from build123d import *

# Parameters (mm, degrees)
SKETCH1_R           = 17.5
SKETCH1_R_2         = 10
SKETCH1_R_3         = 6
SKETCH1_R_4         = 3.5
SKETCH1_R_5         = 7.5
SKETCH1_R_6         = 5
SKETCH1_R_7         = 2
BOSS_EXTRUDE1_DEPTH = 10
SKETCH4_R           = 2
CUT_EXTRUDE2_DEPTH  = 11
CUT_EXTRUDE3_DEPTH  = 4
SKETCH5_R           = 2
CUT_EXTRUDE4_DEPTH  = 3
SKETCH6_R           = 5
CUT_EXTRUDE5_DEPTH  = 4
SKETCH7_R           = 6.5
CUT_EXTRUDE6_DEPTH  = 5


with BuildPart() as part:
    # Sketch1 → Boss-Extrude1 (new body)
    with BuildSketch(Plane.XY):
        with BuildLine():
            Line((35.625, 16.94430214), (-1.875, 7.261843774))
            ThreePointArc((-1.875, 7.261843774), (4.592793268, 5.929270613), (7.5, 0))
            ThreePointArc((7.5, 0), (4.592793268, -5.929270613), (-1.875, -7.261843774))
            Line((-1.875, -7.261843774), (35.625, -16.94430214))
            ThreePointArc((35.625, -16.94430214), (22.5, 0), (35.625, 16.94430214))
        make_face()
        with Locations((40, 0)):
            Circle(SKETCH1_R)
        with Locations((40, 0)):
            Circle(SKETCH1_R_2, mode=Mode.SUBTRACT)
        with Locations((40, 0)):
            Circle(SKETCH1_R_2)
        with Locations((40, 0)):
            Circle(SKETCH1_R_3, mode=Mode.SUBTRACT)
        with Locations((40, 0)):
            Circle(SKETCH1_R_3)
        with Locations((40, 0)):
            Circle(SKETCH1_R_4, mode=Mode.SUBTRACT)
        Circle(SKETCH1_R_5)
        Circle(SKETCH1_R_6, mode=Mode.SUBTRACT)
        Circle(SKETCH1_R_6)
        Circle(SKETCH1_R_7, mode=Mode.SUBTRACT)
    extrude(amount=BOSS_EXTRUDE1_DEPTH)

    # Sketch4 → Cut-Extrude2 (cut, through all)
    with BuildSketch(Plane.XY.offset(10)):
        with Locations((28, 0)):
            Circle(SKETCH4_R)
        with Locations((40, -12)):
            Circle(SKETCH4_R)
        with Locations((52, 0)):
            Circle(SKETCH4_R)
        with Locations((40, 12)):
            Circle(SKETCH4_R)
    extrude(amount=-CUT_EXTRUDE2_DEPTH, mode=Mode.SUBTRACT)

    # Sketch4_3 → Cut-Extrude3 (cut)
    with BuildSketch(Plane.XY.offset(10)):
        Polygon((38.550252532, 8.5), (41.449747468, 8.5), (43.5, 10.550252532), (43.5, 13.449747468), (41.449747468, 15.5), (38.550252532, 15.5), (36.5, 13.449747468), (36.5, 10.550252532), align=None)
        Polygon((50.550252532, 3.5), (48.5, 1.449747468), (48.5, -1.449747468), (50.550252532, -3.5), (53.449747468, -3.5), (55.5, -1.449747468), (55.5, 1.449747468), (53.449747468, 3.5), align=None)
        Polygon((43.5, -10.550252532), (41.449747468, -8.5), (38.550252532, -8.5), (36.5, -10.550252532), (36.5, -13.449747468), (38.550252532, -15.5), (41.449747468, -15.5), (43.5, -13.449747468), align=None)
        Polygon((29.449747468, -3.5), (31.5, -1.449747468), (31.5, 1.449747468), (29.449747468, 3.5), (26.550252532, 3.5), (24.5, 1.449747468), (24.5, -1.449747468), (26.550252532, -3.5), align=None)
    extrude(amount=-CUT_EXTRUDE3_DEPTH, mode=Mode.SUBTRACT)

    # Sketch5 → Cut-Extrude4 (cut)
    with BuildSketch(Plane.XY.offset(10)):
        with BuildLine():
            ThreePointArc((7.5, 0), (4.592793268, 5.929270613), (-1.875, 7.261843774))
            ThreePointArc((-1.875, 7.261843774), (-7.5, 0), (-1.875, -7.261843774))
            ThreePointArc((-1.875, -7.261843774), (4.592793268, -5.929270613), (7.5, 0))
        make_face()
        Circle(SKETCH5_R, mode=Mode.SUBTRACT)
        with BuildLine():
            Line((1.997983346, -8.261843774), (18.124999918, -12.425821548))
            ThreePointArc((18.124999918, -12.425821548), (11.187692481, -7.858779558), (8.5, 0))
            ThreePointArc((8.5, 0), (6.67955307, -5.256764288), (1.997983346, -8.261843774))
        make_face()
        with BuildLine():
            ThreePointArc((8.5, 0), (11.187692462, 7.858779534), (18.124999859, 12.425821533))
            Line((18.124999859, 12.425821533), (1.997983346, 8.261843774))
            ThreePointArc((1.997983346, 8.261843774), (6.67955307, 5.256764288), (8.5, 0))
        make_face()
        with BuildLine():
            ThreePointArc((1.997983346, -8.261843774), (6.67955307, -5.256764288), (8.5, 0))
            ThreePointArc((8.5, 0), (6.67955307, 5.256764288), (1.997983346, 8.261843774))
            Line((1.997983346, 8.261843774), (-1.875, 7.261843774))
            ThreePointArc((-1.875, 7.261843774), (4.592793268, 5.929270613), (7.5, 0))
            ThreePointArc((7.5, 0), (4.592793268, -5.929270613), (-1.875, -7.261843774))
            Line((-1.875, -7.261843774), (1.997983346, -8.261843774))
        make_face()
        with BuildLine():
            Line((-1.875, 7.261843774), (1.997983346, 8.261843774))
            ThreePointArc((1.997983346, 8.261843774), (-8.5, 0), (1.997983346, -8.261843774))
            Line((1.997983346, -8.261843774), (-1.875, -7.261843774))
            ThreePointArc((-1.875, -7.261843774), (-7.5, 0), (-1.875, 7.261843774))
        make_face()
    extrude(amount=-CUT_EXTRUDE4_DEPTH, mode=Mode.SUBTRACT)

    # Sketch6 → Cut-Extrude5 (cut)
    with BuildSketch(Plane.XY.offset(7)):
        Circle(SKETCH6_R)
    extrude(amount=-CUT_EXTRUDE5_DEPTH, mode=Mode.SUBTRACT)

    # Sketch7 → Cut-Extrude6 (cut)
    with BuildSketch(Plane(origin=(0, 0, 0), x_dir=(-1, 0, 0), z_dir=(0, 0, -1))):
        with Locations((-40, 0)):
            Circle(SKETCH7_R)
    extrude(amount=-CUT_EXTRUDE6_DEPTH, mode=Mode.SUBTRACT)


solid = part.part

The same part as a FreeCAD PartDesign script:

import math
import FreeCAD as App
import Part
import Sketcher
Q = App.Units.Quantity


def add_polygon(sketch, points):
    """Adds a closed chain of lines whose ends are joined by coincident constraints."""
    first, n = sketch.GeometryCount, len(points)
    for a, b in zip(points, points[1:] + points[:1]):
        sketch.addGeometry(Part.LineSegment(App.Vector(*a, 0), App.Vector(*b, 0)), False)
    for i in range(n):
        sketch.addConstraint(Sketcher.Constraint("Coincident", first + i, 2, first + (i + 1) % n, 1))

doc = App.newDocument("Part")
body = doc.addObject("PartDesign::Body", "Body")

# Sketch on XY plane
sketch1 = body.newObject("Sketcher::SketchObject", "Sketch")
sketch1.AttachmentSupport = (doc.getObject("XY_Plane"), [""])
sketch1.MapMode = "FlatFace"
sketch1.addGeometry(Part.LineSegment(App.Vector(35.6, 16.9, 0), App.Vector(-1.9, 7.3, 0)), False)
sketch1.addGeometry(Part.ArcOfCircle(Part.Circle(App.Vector(0, 0, 0), App.Vector(0, 0, 1), 7.5), math.radians(104), math.radians(256)), False)
sketch1.addGeometry(Part.LineSegment(App.Vector(-1.9, -7.3, 0), App.Vector(35.6, -16.9, 0)), False)
sketch1.addGeometry(Part.ArcOfCircle(Part.Circle(App.Vector(40, 0, 0), App.Vector(0, 0, 1), 17.5), math.radians(-104), math.radians(104)), False)
sketch1.addGeometry(Part.Circle(App.Vector(0, 0, 0), App.Vector(0, 0, 1), 2), False)
sketch1.addGeometry(Part.Circle(App.Vector(40, 0, 0), App.Vector(0, 0, 1), 3.5), False)
sketch1.addConstraint(Sketcher.Constraint("Tangent", 0, 2, 1, 1))
sketch1.addConstraint(Sketcher.Constraint("Tangent", 1, 2, 2, 1))
sketch1.addConstraint(Sketcher.Constraint("Tangent", 2, 2, 3, 1))
sketch1.addConstraint(Sketcher.Constraint("Tangent", 3, 2, 0, 1))
sketch1.addConstraint(Sketcher.Constraint("Coincident", 1, 3, -1, 1))
sketch1.addConstraint(Sketcher.Constraint("Coincident", 4, 3, -1, 1))
sketch1.addConstraint(Sketcher.Constraint("Coincident", 5, 3, 3, 3))
sketch1.addConstraint(Sketcher.Constraint("PointOnObject", 3, 3, -1))
sketch1.addConstraint(Sketcher.Constraint("Diameter", 4, Q("4 mm")))
sketch1.addConstraint(Sketcher.Constraint("Diameter", 5, Q("7 mm")))
sketch1.addConstraint(Sketcher.Constraint("Radius", 1, Q("7.5 mm")))
sketch1.addConstraint(Sketcher.Constraint("Radius", 3, Q("17.5 mm")))
sketch1.addConstraint(Sketcher.Constraint("DistanceX", -1, 1, 3, 3, Q("40 mm")))
pad1 = body.newObject("PartDesign::Pad", "Pad")
pad1.Profile = sketch1
pad1.Length = 10

# Sketch on XY plane
sketch2 = body.newObject("Sketcher::SketchObject", "Sketch001")
sketch2.AttachmentSupport = (doc.getObject("XY_Plane"), [""])
sketch2.MapMode = "FlatFace"
sketch2.AttachmentOffset = App.Placement(App.Vector(0, 0, 10), App.Rotation())
sketch2.addGeometry(Part.Circle(App.Vector(28, 0, 0), App.Vector(0, 0, 1), 2), False)
sketch2.addGeometry(Part.Circle(App.Vector(40, -12, 0), App.Vector(0, 0, 1), 2), False)
sketch2.addGeometry(Part.Circle(App.Vector(52, 0, 0), App.Vector(0, 0, 1), 2), False)
sketch2.addGeometry(Part.Circle(App.Vector(40, 12, 0), App.Vector(0, 0, 1), 2), False)
sketch2.addConstraint(Sketcher.Constraint("Equal", 0, 1))
sketch2.addConstraint(Sketcher.Constraint("Equal", 1, 2))
sketch2.addConstraint(Sketcher.Constraint("Equal", 2, 3))
sketch2.addConstraint(Sketcher.Constraint("Symmetric", 1, 3, 3, 3, -1))
sketch2.addConstraint(Sketcher.Constraint("PointOnObject", 0, 3, -1))
sketch2.addConstraint(Sketcher.Constraint("PointOnObject", 2, 3, -1))
sketch2.addConstraint(Sketcher.Constraint("Diameter", 0, Q("4 mm")))
sketch2.addConstraint(Sketcher.Constraint("DistanceX", -1, 1, 0, 3, Q("28 mm")))
sketch2.addConstraint(Sketcher.Constraint("DistanceX", -1, 1, 1, 3, Q("40 mm")))
sketch2.addConstraint(Sketcher.Constraint("DistanceY", 1, 3, -1, 1, Q("12 mm")))
sketch2.addConstraint(Sketcher.Constraint("DistanceX", -1, 1, 2, 3, Q("52 mm")))
pocket1 = body.newObject("PartDesign::Pocket", "Pocket")
pocket1.Profile = sketch2
pocket1.Type = "ThroughAll"

# Sketch on XY plane
sketch3 = body.newObject("Sketcher::SketchObject", "Sketch002")
sketch3.AttachmentSupport = (doc.getObject("XY_Plane"), [""])
sketch3.MapMode = "FlatFace"
sketch3.AttachmentOffset = App.Placement(App.Vector(0, 0, 10), App.Rotation())
add_polygon(sketch3, [(38.6, 8.5), (41.4, 8.5), (43.5, 10.6), (43.5, 13.4), (41.4, 15.5), (38.6, 15.5), (36.5, 13.4), (36.5, 10.6)])  # lines 0-7
add_polygon(sketch3, [(50.6, 3.5), (48.5, 1.4), (48.5, -1.4), (50.6, -3.5), (53.4, -3.5), (55.5, -1.4), (55.5, 1.4), (53.4, 3.5)])  # lines 8-15
add_polygon(sketch3, [(43.5, -10.6), (41.4, -8.5), (38.6, -8.5), (36.5, -10.6), (36.5, -13.4), (38.6, -15.5), (41.4, -15.5), (43.5, -13.4)])  # lines 16-23
add_polygon(sketch3, [(29.4, -3.5), (31.5, -1.4), (31.5, 1.4), (29.4, 3.5), (26.6, 3.5), (24.5, 1.4), (24.5, -1.4), (26.6, -3.5)])  # lines 24-31
sketch3.addConstraint(Sketcher.Constraint("Horizontal", 0))
sketch3.addConstraint(Sketcher.Constraint("Vertical", 2))
sketch3.addConstraint(Sketcher.Constraint("Horizontal", 4))
sketch3.addConstraint(Sketcher.Constraint("Vertical", 6))
sketch3.addConstraint(Sketcher.Constraint("Vertical", 9))
sketch3.addConstraint(Sketcher.Constraint("Horizontal", 11))
sketch3.addConstraint(Sketcher.Constraint("Vertical", 13))
sketch3.addConstraint(Sketcher.Constraint("Horizontal", 15))
sketch3.addConstraint(Sketcher.Constraint("Horizontal", 17))
sketch3.addConstraint(Sketcher.Constraint("Vertical", 19))
sketch3.addConstraint(Sketcher.Constraint("Horizontal", 21))
sketch3.addConstraint(Sketcher.Constraint("Vertical", 23))
sketch3.addConstraint(Sketcher.Constraint("Vertical", 25))
sketch3.addConstraint(Sketcher.Constraint("Horizontal", 27))
sketch3.addConstraint(Sketcher.Constraint("Vertical", 29))
sketch3.addConstraint(Sketcher.Constraint("Horizontal", 31))
sketch3.addConstraint(Sketcher.Constraint("Symmetric", 11, 2, 14, 2, -1))
sketch3.addConstraint(Sketcher.Constraint("Symmetric", 0, 2, 16, 2, -1))
sketch3.addConstraint(Sketcher.Constraint("Symmetric", 6, 2, 18, 2, -1))
sketch3.addConstraint(Sketcher.Constraint("Symmetric", 4, 2, 20, 2, -1))
sketch3.addConstraint(Sketcher.Constraint("Symmetric", 2, 2, 22, 2, -1))
sketch3.addConstraint(Sketcher.Constraint("Symmetric", 27, 2, 30, 2, -1))
sketch3.addConstraint(Sketcher.Constraint("Perpendicular", 1, 3))
sketch3.addConstraint(Sketcher.Constraint("Perpendicular", 3, 5))
sketch3.addConstraint(Sketcher.Constraint("Perpendicular", 5, 7))
sketch3.addConstraint(Sketcher.Constraint("Perpendicular", 7, 8))
sketch3.addConstraint(Sketcher.Constraint("Perpendicular", 8, 10))
sketch3.addConstraint(Sketcher.Constraint("Perpendicular", 10, 12))
sketch3.addConstraint(Sketcher.Constraint("Perpendicular", 12, 14))
sketch3.addConstraint(Sketcher.Constraint("Parallel", 14, 16))
sketch3.addConstraint(Sketcher.Constraint("Perpendicular", 16, 18))
sketch3.addConstraint(Sketcher.Constraint("Perpendicular", 18, 20))
sketch3.addConstraint(Sketcher.Constraint("Perpendicular", 20, 22))
sketch3.addConstraint(Sketcher.Constraint("Parallel", 22, 24))
sketch3.addConstraint(Sketcher.Constraint("Perpendicular", 24, 26))
sketch3.addConstraint(Sketcher.Constraint("Perpendicular", 26, 28))
sketch3.addConstraint(Sketcher.Constraint("Perpendicular", 28, 30))
sketch3.addConstraint(Sketcher.Constraint("Horizontal", 2, 2, 5, 2))
sketch3.addConstraint(Sketcher.Constraint("Horizontal", 1, 2, 6, 2))
sketch3.addConstraint(Sketcher.Constraint("Horizontal", 9, 2, 12, 2))
sketch3.addConstraint(Sketcher.Constraint("Horizontal", 8, 2, 13, 2))
sketch3.addConstraint(Sketcher.Constraint("Horizontal", 19, 2, 22, 2))
sketch3.addConstraint(Sketcher.Constraint("Horizontal", 12, 2, 24, 2))
sketch3.addConstraint(Sketcher.Constraint("Horizontal", 13, 2, 25, 2))
sketch3.addConstraint(Sketcher.Constraint("Horizontal", 15, 2, 26, 2))
sketch3.addConstraint(Sketcher.Constraint("Horizontal", 25, 2, 28, 2))
sketch3.addConstraint(Sketcher.Constraint("Vertical", 0, 2, 3, 2))
sketch3.addConstraint(Sketcher.Constraint("Equal", 4, 11))
sketch3.addConstraint(Sketcher.Constraint("Equal", 21, 27))
sketch3.addConstraint(Sketcher.Constraint("Equal", 31, 2))
sketch3.addConstraint(Sketcher.Constraint("Equal", 6, 9))
sketch3.addConstraint(Sketcher.Constraint("Equal", 7, 8))
sketch3.addConstraint(Sketcher.Constraint("DistanceY", 0, 2, 3, 2, Q("7 mm")))
sketch3.addConstraint(Sketcher.Constraint("DistanceX", 1, 2, 8, 2, Q("5 mm")))
sketch3.addConstraint(Sketcher.Constraint("DistanceY", 8, 2, 2, 2, Q("12 mm")))
sketch3.addConstraint(Sketcher.Constraint("DistanceX", 24, 2, 18, 2, Q("5 mm")))
sketch3.addConstraint(Sketcher.Constraint("DistanceX", -1, 1, 1, 2, Q("43.5 mm")))
sketch3.addConstraint(Sketcher.Constraint("DistanceX", 0, 1, 0, 2, Q("2.899495 mm")))
pocket2 = body.newObject("PartDesign::Pocket", "Pocket001")
pocket2.Profile = sketch3
pocket2.Length = 4

# Sketch on XY plane
sketch4 = body.newObject("Sketcher::SketchObject", "Sketch003")
sketch4.AttachmentSupport = (doc.getObject("XY_Plane"), [""])
sketch4.MapMode = "FlatFace"
sketch4.AttachmentOffset = App.Placement(App.Vector(0, 0, 10), App.Rotation())
sketch4.addGeometry(Part.LineSegment(App.Vector(2, -8.3, 0), App.Vector(18.1, -12.4, 0)), False)
sketch4.addGeometry(Part.ArcOfCircle(Part.Circle(App.Vector(21.3, 0, 0), App.Vector(0, 0, 1), 12.8), math.radians(180), math.radians(256)), False)
sketch4.addGeometry(Part.ArcOfCircle(Part.Circle(App.Vector(21.3, 0, 0), App.Vector(0, 0, 1), 12.8), math.radians(104), math.radians(180)), False)
sketch4.addGeometry(Part.LineSegment(App.Vector(18.1, 12.4, 0), App.Vector(2, 8.3, 0)), False)
sketch4.addGeometry(Part.ArcOfCircle(Part.Circle(App.Vector(0, 0, 0), App.Vector(0, 0, 1), 8.5), math.radians(76), math.radians(284)), False)
sketch4.addGeometry(Part.Circle(App.Vector(0, 0, 0), App.Vector(0, 0, 1), 2), False)
sketch4.addConstraint(Sketcher.Constraint("Tangent", 0, 2, 1, 2))
sketch4.addConstraint(Sketcher.Constraint("Tangent", 1, 1, 2, 2))
sketch4.addConstraint(Sketcher.Constraint("Tangent", 2, 1, 3, 1))
sketch4.addConstraint(Sketcher.Constraint("Coincident", 3, 2, 4, 1))
sketch4.addConstraint(Sketcher.Constraint("Coincident", 4, 2, 0, 1))
sketch4.addConstraint(Sketcher.Constraint("Coincident", 4, 3, -1, 1))
sketch4.addConstraint(Sketcher.Constraint("Coincident", 5, 3, -1, 1))
sketch4.addConstraint(Sketcher.Constraint("Equal", 1, 2))
sketch4.addConstraint(Sketcher.Constraint("Symmetric", 0, 2, 2, 1, -1))
sketch4.addConstraint(Sketcher.Constraint("PointOnObject", 1, 1, -1))
sketch4.addConstraint(Sketcher.Constraint("Diameter", 5, Q("4 mm")))
sketch4.addConstraint(Sketcher.Constraint("Radius", 4, Q("8.5 mm")))
sketch4.addConstraint(Sketcher.Constraint("DistanceX", -1, 1, 1, 1, Q("8.5 mm")))
sketch4.addConstraint(Sketcher.Constraint("DistanceX", -1, 1, 0, 2, Q("18.125 mm")))
sketch4.addConstraint(Sketcher.Constraint("Radius", 1, Q("12.833333 mm")))
pocket3 = body.newObject("PartDesign::Pocket", "Pocket002")
pocket3.Profile = sketch4
pocket3.Length = 3

# Sketch on XY plane
sketch5 = body.newObject("Sketcher::SketchObject", "Sketch004")
sketch5.AttachmentSupport = (doc.getObject("XY_Plane"), [""])
sketch5.MapMode = "FlatFace"
sketch5.AttachmentOffset = App.Placement(App.Vector(0, 0, 7), App.Rotation())
sketch5.addGeometry(Part.Circle(App.Vector(0, 0, 0), App.Vector(0, 0, 1), 5), False)
sketch5.addConstraint(Sketcher.Constraint("Coincident", 0, 3, -1, 1))
sketch5.addConstraint(Sketcher.Constraint("Diameter", 0, Q("10 mm")))
pocket4 = body.newObject("PartDesign::Pocket", "Pocket003")
pocket4.Profile = sketch5
pocket4.Length = 4

# Sketch on XY plane
sketch6 = body.newObject("Sketcher::SketchObject", "Sketch005")
sketch6.AttachmentSupport = (doc.getObject("XY_Plane"), [""])
sketch6.MapMode = "FlatFace"
sketch6.addGeometry(Part.Circle(App.Vector(40, 0, 0), App.Vector(0, 0, 1), 6), False)
sketch6.addConstraint(Sketcher.Constraint("PointOnObject", 0, 3, -1))
sketch6.addConstraint(Sketcher.Constraint("Diameter", 0, Q("13 mm")))
sketch6.addConstraint(Sketcher.Constraint("DistanceX", -1, 1, 0, 3, Q("40 mm")))
pocket5 = body.newObject("PartDesign::Pocket", "Pocket004")
pocket5.Profile = sketch6
pocket5.Length = 5
pocket5.Reversed = True

doc.recompute()
